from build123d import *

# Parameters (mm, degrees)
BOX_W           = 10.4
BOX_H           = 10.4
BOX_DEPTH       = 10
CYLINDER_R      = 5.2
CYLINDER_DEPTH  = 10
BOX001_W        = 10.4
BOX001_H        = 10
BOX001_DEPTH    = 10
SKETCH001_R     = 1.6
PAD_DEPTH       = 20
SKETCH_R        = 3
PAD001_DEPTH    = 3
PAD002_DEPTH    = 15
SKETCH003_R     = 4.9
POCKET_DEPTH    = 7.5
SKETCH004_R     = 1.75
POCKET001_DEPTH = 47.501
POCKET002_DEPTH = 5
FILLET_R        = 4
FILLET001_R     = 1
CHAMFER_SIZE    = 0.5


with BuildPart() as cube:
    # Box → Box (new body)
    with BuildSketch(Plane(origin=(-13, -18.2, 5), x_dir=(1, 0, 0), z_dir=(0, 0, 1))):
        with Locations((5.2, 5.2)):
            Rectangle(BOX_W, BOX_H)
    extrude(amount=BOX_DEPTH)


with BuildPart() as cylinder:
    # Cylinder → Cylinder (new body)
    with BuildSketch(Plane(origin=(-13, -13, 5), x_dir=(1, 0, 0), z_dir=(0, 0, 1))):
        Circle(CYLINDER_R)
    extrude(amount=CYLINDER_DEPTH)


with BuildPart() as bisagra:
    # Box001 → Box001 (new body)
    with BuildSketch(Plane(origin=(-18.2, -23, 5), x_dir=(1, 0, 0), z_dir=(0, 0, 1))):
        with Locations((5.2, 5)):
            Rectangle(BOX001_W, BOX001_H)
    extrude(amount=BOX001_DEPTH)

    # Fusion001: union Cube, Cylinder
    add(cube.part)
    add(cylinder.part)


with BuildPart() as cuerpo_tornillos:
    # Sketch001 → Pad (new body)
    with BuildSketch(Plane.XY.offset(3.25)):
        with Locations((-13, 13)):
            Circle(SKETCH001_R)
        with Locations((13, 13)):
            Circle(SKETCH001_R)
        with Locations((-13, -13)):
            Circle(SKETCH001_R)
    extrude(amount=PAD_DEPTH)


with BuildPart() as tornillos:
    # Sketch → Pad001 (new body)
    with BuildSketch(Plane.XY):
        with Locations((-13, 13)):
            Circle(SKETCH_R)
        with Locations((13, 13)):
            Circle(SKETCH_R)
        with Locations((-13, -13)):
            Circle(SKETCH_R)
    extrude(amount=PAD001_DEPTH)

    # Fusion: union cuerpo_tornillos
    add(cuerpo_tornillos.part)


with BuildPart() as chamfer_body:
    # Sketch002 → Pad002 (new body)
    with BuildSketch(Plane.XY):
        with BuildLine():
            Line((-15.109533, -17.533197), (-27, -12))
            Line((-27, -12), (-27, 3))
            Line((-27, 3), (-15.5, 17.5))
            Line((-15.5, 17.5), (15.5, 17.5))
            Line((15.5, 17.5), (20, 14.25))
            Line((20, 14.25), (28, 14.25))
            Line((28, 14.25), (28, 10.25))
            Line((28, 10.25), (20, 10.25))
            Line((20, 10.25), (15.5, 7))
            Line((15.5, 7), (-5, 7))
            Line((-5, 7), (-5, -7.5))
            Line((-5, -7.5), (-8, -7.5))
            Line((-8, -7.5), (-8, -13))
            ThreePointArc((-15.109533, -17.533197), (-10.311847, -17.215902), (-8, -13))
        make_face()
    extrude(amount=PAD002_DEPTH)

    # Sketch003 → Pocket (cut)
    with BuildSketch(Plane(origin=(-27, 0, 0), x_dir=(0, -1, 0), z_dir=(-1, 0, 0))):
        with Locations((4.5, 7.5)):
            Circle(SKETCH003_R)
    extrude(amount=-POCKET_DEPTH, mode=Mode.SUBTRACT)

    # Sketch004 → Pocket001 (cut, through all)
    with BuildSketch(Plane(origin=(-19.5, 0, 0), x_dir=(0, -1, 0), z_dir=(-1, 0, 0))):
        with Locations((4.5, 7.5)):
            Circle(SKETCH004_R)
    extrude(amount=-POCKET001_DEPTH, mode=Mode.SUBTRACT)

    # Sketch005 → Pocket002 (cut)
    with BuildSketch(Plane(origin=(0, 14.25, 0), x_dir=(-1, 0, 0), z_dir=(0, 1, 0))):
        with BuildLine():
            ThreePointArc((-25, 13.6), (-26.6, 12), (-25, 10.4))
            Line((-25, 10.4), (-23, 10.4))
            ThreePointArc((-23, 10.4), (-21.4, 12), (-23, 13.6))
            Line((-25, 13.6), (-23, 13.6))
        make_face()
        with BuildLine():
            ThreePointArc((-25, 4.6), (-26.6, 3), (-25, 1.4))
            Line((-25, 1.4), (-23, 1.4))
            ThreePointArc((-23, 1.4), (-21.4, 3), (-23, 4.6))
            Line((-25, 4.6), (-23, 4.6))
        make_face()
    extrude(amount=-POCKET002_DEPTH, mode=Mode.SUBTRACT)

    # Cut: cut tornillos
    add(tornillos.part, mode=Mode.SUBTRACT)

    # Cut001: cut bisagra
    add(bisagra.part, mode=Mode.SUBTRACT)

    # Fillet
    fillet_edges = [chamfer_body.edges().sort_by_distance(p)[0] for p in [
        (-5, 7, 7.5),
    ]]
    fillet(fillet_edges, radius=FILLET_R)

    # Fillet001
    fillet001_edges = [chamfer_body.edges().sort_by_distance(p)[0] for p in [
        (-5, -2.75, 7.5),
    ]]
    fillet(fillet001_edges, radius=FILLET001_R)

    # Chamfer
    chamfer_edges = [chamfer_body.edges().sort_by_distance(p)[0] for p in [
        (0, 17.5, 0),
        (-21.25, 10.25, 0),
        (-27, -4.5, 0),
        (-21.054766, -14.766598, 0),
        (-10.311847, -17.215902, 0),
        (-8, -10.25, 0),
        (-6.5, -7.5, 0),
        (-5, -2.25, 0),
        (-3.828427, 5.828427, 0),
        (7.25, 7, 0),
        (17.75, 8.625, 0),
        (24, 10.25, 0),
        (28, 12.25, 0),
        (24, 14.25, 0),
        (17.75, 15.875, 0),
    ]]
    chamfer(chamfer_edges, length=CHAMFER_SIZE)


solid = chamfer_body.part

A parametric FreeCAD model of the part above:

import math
import FreeCAD as App
import Part
import Sketcher
from FreeCAD import Vector


def edges_at(feature, points):
    """Names of the edges that pass closest to the given points."""
    edges = feature.Shape.Edges
    near = lambda p: min(range(len(edges)), key=lambda i: edges[i].distToShape(Part.Vertex(*p))[0])
    return sorted({f"Edge{near(p) + 1}" for p in points})

doc = App.newDocument("Part")
body = doc.addObject("PartDesign::Body", "Body")

sketch1 = doc.addObject("Sketcher::SketchObject", "Sketch")
body.addObject(sketch1)
sketch1.AttachmentSupport = (doc.XY_Plane, [""])
sketch1.MapMode = "FlatFace"
sketch1.AttachmentOffset = App.Placement(Vector(0, 0, 5), App.Rotation())
sketch1.addGeometry(Part.LineSegment(Vector(-13, -7.8, 0), Vector(-13, -18.2, 0)), False)
sketch1.addGeometry(Part.LineSegment(Vector(-13, -18.2, 0), Vector(-2.6, -18.2, 0)), False)
sketch1.addGeometry(Part.LineSegment(Vector(-2.6, -18.2, 0), Vector(-2.6, -7.8, 0)), False)
sketch1.addGeometry(Part.LineSegment(Vector(-2.6, -7.8, 0), Vector(-13, -7.8, 0)), False)
sketch1.addConstraint(Sketcher.Constraint("Coincident", 0, 2, 1, 1))
sketch1.addConstraint(Sketcher.Constraint("Coincident", 1, 2, 2, 1))
sketch1.addConstraint(Sketcher.Constraint("Coincident", 2, 2, 3, 1))
sketch1.addConstraint(Sketcher.Constraint("Coincident", 3, 2, 0, 1))
sketch1.addConstraint(Sketcher.Constraint("Vertical", 0))
sketch1.addConstraint(Sketcher.Constraint("Horizontal", 1))
sketch1.addConstraint(Sketcher.Constraint("Vertical", 2))
sketch1.addConstraint(Sketcher.Constraint("Horizontal", 3))
sketch1.addConstraint(Sketcher.Constraint("Equal", 3, 0))
sketch1.addConstraint(Sketcher.Constraint("DistanceX", 1, 1, 1, 2, 10.4))
sketch1.addConstraint(Sketcher.Constraint("DistanceX", 0, 2, -1, 1, 13.0))
sketch1.addConstraint(Sketcher.Constraint("DistanceY", 0, 2, -1, 1, 18.2))
pad1 = doc.addObject("PartDesign::Pad", "Pad")
body.addObject(pad1)
pad1.Profile = sketch1
pad1.Length = 10
body2 = doc.addObject("PartDesign::Body", "Body001")

sketch2 = doc.addObject("Sketcher::SketchObject", "Sketch001")
body2.addObject(sketch2)
sketch2.AttachmentSupport = (doc.getObject("XY_Plane001"), [""])
sketch2.MapMode = "FlatFace"
sketch2.AttachmentOffset = App.Placement(Vector(0, 0, 5), App.Rotation())
sketch2.addGeometry(Part.Circle(Vector(-13, -13, 0), Vector(0, 0, 1), 5.2), False)
sketch2.addConstraint(Sketcher.Constraint("Diameter", 0, 10.4))
sketch2.addConstraint(Sketcher.Constraint("DistanceX", 0, 3, -1, 1, 13.0))
sketch2.addConstraint(Sketcher.Constraint("DistanceY", 0, 3, -1, 1, 13.0))
pad2 = doc.addObject("PartDesign::Pad", "Pad001")
body2.addObject(pad2)
pad2.Profile = sketch2
pad2.Length = 10
body3 = doc.addObject("PartDesign::Body", "Body002")

sketch3 = doc.addObject("Sketcher::SketchObject", "Sketch002")
body3.addObject(sketch3)
sketch3.AttachmentSupport = (doc.getObject("XY_Plane002"), [""])
sketch3.MapMode = "FlatFace"
sketch3.AttachmentOffset = App.Placement(Vector(0, 0, 5), App.Rotation())
sketch3.addGeometry(Part.LineSegment(Vector(-18.2, -13, 0), Vector(-18.2, -23, 0)), False)
sketch3.addGeometry(Part.LineSegment(Vector(-18.2, -23, 0), Vector(-7.8, -23, 0)), False)
sketch3.addGeometry(Part.LineSegment(Vector(-7.8, -23, 0), Vector(-7.8, -13, 0)), False)
sketch3.addGeometry(Part.LineSegment(Vector(-7.8, -13, 0), Vector(-18.2, -13, 0)), False)
sketch3.addConstraint(Sketcher.Constraint("Coincident", 0, 2, 1, 1))
sketch3.addConstraint(Sketcher.Constraint("Coincident", 1, 2, 2, 1))
sketch3.addConstraint(Sketcher.Constraint("Coincident", 2, 2, 3, 1))
sketch3.addConstraint(Sketcher.Constraint("Coincident", 3, 2, 0, 1))
sketch3.addConstraint(Sketcher.Constraint("Vertical", 0))
sketch3.addConstraint(Sketcher.Constraint("Horizontal", 1))
sketch3.addConstraint(Sketcher.Constraint("Vertical", 2))
sketch3.addConstraint(Sketcher.Constraint("Horizontal", 3))
sketch3.addConstraint(Sketcher.Constraint("DistanceY", 0, 2, 0, 1, 10.0))
sketch3.addConstraint(Sketcher.Constraint("DistanceX", 1, 1, 1, 2, 10.4))
sketch3.addConstraint(Sketcher.Constraint("DistanceY", 0, 2, -1, 1, 23.0))
sketch3.addConstraint(Sketcher.Constraint("DistanceX", 0, 2, -1, 1, 18.2))
pad3 = doc.addObject("PartDesign::Pad", "Pad002")
body3.addObject(pad3)
pad3.Profile = sketch3
pad3.Length = 10
doc.recompute()

boolean = doc.addObject("PartDesign::Boolean", "Boolean")
body3.addObject(boolean)
boolean.Type = "Fuse"
boolean.addObjects([body])
doc.recompute()

boolean2 = doc.addObject("PartDesign::Boolean", "Boolean001")
body3.addObject(boolean2)
boolean2.Type = "Fuse"
boolean2.addObjects([body2])
body4 = doc.addObject("PartDesign::Body", "Body003")
body4.AllowCompound = True

sketch4 = doc.addObject("Sketcher::SketchObject", "Sketch003")
body4.addObject(sketch4)
sketch4.AttachmentSupport = (doc.getObject("XY_Plane003"), [""])
sketch4.MapMode = "FlatFace"
sketch4.AttachmentOffset = App.Placement(Vector(0, 0, 3.25), App.Rotation())
sketch4.addGeometry(Part.Circle(Vector(-13, 13, 0), Vector(0, 0, 1), 1.6), False)
sketch4.addGeometry(Part.Circle(Vector(13, 13, 0), Vector(0, 0, 1), 1.6), False)
sketch4.addGeometry(Part.Circle(Vector(-13, -13, 0), Vector(0, 0, 1), 1.6), False)
sketch4.addConstraint(Sketcher.Constraint("Equal", 0, 1))
sketch4.addConstraint(Sketcher.Constraint("Equal", 1, 2))
sketch4.addConstraint(Sketcher.Constraint("Symmetric", 1, 3, 2, 3, -1, 1))
sketch4.addConstraint(Sketcher.Constraint("Symmetric", 0, 3, 1, 3, -2))
sketch4.addConstraint(Sketcher.Constraint("Diameter", 0, 3.2))
sketch4.addConstraint(Sketcher.Constraint("DistanceX", 0, 3, -1, 1, 13.0))
sketch4.addConstraint(Sketcher.Constraint("DistanceY", -1, 1, 0, 3, 13.0))
pad4 = doc.addObject("PartDesign::Pad", "Pad003")
body4.addObject(pad4)
pad4.Profile = sketch4
pad4.Length = 20
body5 = doc.addObject("PartDesign::Body", "Body004")
body5.AllowCompound = True

sketch5 = doc.addObject("Sketcher::SketchObject", "Sketch004")
body5.addObject(sketch5)
sketch5.AttachmentSupport = (doc.getObject("XY_Plane004"), [""])
sketch5.MapMode = "FlatFace"
sketch5.addGeometry(Part.Circle(Vector(-13, 13, 0), Vector(0, 0, 1), 3), False)
sketch5.addGeometry(Part.Circle(Vector(13, 13, 0), Vector(0, 0, 1), 3), False)
sketch5.addGeometry(Part.Circle(Vector(-13, -13, 0), Vector(0, 0, 1), 3), False)
sketch5.addConstraint(Sketcher.Constraint("Equal", 0, 1))
sketch5.addConstraint(Sketcher.Constraint("Equal", 1, 2))
sketch5.addConstraint(Sketcher.Constraint("Symmetric", 1, 3, 2, 3, -1, 1))
sketch5.addConstraint(Sketcher.Constraint("Symmetric", 0, 3, 1, 3, -2))
sketch5.addConstraint(Sketcher.Constraint("Diameter", 0, 6.0))
sketch5.addConstraint(Sketcher.Constraint("DistanceX", 0, 3, -1, 1, 13.0))
sketch5.addConstraint(Sketcher.Constraint("DistanceY", -1, 1, 0, 3, 13.0))
pad5 = doc.addObject("PartDesign::Pad", "Pad004")
body5.addObject(pad5)
pad5.Profile = sketch5
pad5.Length = 3
doc.recompute()

boolean3 = doc.addObject("PartDesign::Boolean", "Boolean002")
body5.addObject(boolean3)
boolean3.Type = "Fuse"
boolean3.addObjects([body4])
body6 = doc.addObject("PartDesign::Body", "Body005")

sketch6 = doc.addObject("Sketcher::SketchObject", "Sketch005")
body6.addObject(sketch6)
sketch6.AttachmentSupport = (doc.getObject("XY_Plane005"), [""])
sketch6.MapMode = "FlatFace"
sketch6.addGeometry(Part.LineSegment(Vector(-27, -12, 0), Vector(-15.109533, -17.533197, 0)), False)
sketch6.addGeometry(Part.ArcOfCircle(Part.Circle(Vector(-13.000001, -12.999999, 0), Vector(0, 0, 1), 5.000001), math.radians(-114.955001), math.radians(-0.000011)), False)
sketch6.addGeometry(Part.LineSegment(Vector(-8, -13, 0), Vector(-8, -7.5, 0)), False)
sketch6.addGeometry(Part.LineSegment(Vector(-8, -7.5, 0), Vector(-5, -7.5, 0)), False)
sketch6.addGeometry(Part.LineSegment(Vector(-5, -7.5, 0), Vector(-5, 7, 0)), False)
sketch6.addGeometry(Part.LineSegment(Vector(-5, 7, 0), Vector(15.5, 7, 0)), False)
sketch6.addGeometry(Part.LineSegment(Vector(15.5, 7, 0), Vector(20, 10.25, 0)), False)
sketch6.addGeometry(Part.LineSegment(Vector(20, 10.25, 0), Vector(28, 10.25, 0)), False)
sketch6.addGeometry(Part.LineSegment(Vector(28, 10.25, 0), Vector(28, 14.25, 0)), False)
sketch6.addGeometry(Part.LineSegment(Vector(28, 14.25, 0), Vector(20, 14.25, 0)), False)
sketch6.addGeometry(Part.LineSegment(Vector(20, 14.25, 0), Vector(15.5, 17.5, 0)), False)
sketch6.addGeometry(Part.LineSegment(Vector(15.5, 17.5, 0), Vector(-15.5, 17.5, 0)), False)
sketch6.addGeometry(Part.LineSegment(Vector(-15.5, 17.5, 0), Vector(-27, 3, 0)), False)
sketch6.addGeometry(Part.LineSegment(Vector(-27, 3, 0), Vector(-27, -12, 0)), False)
sketch6.addConstraint(Sketcher.Constraint("Coincident", 0, 2, 1, 1))
sketch6.addConstraint(Sketcher.Constraint("Tangent", 1, 2, 2, 1))
sketch6.addConstraint(Sketcher.Constraint("Coincident", 2, 2, 3, 1))
sketch6.addConstraint(Sketcher.Constraint("Coincident", 3, 2, 4, 1))
sketch6.addConstraint(Sketcher.Constraint("Coincident", 4, 2, 5, 1))
sketch6.addConstraint(Sketcher.Constraint("Coincident", 5, 2, 6, 1))
sketch6.addConstraint(Sketcher.Constraint("Coincident", 6, 2, 7, 1))
sketch6.addConstraint(Sketcher.Constraint("Coincident", 7, 2, 8, 1))
sketch6.addConstraint(Sketcher.Constraint("Coincident", 8, 2, 9, 1))
sketch6.addConstraint(Sketcher.Constraint("Coincident", 9, 2, 10, 1))
sketch6.addConstraint(Sketcher.Constraint("Coincident", 10, 2, 11, 1))
sketch6.addConstraint(Sketcher.Constraint("Coincident", 11, 2, 12, 1))
sketch6.addConstraint(Sketcher.Constraint("Coincident", 12, 2, 13, 1))
sketch6.addConstraint(Sketcher.Constraint("Coincident", 13, 2, 0, 1))
sketch6.addConstraint(Sketcher.Constraint("Vertical", 2))
sketch6.addConstraint(Sketcher.Constraint("Horizontal", 3))
sketch6.addConstraint(Sketcher.Constraint("Vertical", 4))
sketch6.addConstraint(Sketcher.Constraint("Horizontal", 5))
sketch6.addConstraint(Sketcher.Constraint("Horizontal", 7))
sketch6.addConstraint(Sketcher.Constraint("Vertical", 8))
sketch6.addConstraint(Sketcher.Constraint("Horizontal", 9))
sketch6.addConstraint(Sketcher.Constraint("Horizontal", 11))
sketch6.addConstraint(Sketcher.Constraint("Vertical", 13))
sketch6.addConstraint(Sketcher.Constraint("Vertical", 6, 2, 9, 2))
sketch6.addConstraint(Sketcher.Constraint("Vertical", 5, 2, 10, 2))
sketch6.addConstraint(Sketcher.Constraint("Equal", 6, 10))
sketch6.addConstraint(Sketcher.Constraint("Radius", 1, 5.000001))
sketch6.addConstraint(Sketcher.Constraint("DistanceX", 3, 1, 3, 2, 3.0))
sketch6.addConstraint(Sketcher.Constraint("DistanceX", 7, 1, 7, 2, 8.0))
sketch6.addConstraint(Sketcher.Constraint("DistanceX", 11, 2, 11, 1, 31.0))
sketch6.addConstraint(Sketcher.Constraint("DistanceY", 8, 1, 8, 2, 4.0))
sketch6.addConstraint(Sketcher.Constraint("DistanceY", 13, 2, 13, 1, 15.0))
sketch6.addConstraint(Sketcher.Constraint("DistanceX", 5, 1, 5, 2, 20.5))
sketch6.addConstraint(Sketcher.Constraint("DistanceY", 2, 1, 2, 2, 5.5))
sketch6.addConstraint(Sketcher.Constraint("DistanceY", 4, 1, 4, 2, 14.5))
sketch6.addConstraint(Sketcher.Constraint("DistanceX", 1, 3, -1, 1, 13.000001))
sketch6.addConstraint(Sketcher.Constraint("DistanceY", 1, 3, -1, 1, 12.999999))
sketch6.addConstraint(Sketcher.Constraint("DistanceX", -1, 1, 6, 2, 20.0))
sketch6.addConstraint(Sketcher.Constraint("DistanceX", 12, 2, -1, 1, 27.0))
sketch6.addConstraint(Sketcher.Constraint("DistanceY", -1, 1, 12, 2, 3.0))
sketch6.addConstraint(Sketcher.Constraint("DistanceY", 2, 2, 11, 2, 25.0))
sketch6.addConstraint(Sketcher.Constraint("Distance", 0, 13.114857))
pad6 = doc.addObject("PartDesign::Pad", "Pad005")
body6.addObject(pad6)
pad6.Profile = sketch6
pad6.Length = 15

sketch7 = doc.addObject("Sketcher::SketchObject", "Sketch006")
body6.addObject(sketch7)
sketch7.AttachmentSupport = (doc.getObject("YZ_Plane005"), [""])
sketch7.MapMode = "FlatFace"
sketch7.AttachmentOffset = App.Placement(Vector(0, 0, -27), App.Rotation())
sketch7.addGeometry(Part.Circle(Vector(-4.5, 7.5, 0), Vector(0, 0, 1), 4.9), False)
sketch7.addConstraint(Sketcher.Constraint("Diameter", 0, 9.8))
sketch7.addConstraint(Sketcher.Constraint("DistanceX", 0, 3, -1, 1, 4.5))
sketch7.addConstraint(Sketcher.Constraint("DistanceY", -1, 1, 0, 3, 7.5))
pocket1 = doc.addObject("PartDesign::Pocket", "Pocket")
body6.addObject(pocket1)
pocket1.Profile = sketch7
pocket1.Length = 7.5
pocket1.Reversed = True

sketch8 = doc.addObject("Sketcher::SketchObject", "Sketch007")
body6.addObject(sketch8)
sketch8.AttachmentSupport = (doc.getObject("YZ_Plane005"), [""])
sketch8.MapMode = "FlatFace"
sketch8.AttachmentOffset = App.Placement(Vector(0, 0, -19.5), App.Rotation())
sketch8.addGeometry(Part.Circle(Vector(-4.5, 7.5, 0), Vector(0, 0, 1), 1.75), False)
sketch8.addConstraint(Sketcher.Constraint("Diameter", 0, 3.5))
sketch8.addConstraint(Sketcher.Constraint("DistanceX", 0, 3, -1, 1, 4.5))
sketch8.addConstraint(Sketcher.Constraint("DistanceY", -1, 1, 0, 3, 7.5))
pocket2 = doc.addObject("PartDesign::Pocket", "Pocket001")
body6.addObject(pocket2)
pocket2.Profile = sketch8
pocket2.Type = "ThroughAll"
pocket2.Reversed = True

sketch9 = doc.addObject("Sketcher::SketchObject", "Sketch008")
body6.addObject(sketch9)
sketch9.AttachmentSupport = (doc.getObject("XZ_Plane005"), [""])
sketch9.MapMode = "FlatFace"
sketch9.AttachmentOffset = App.Placement(Vector(0, 0, -14.25), App.Rotation())
sketch9.addGeometry(Part.ArcOfCircle(Part.Circle(Vector(25, 12, 0), Vector(0, 0, 1), 1.6), math.radians(-90), math.radians(90)), False)
sketch9.addGeometry(Part.LineSegment(Vector(25, 10.4, 0), Vector(23, 10.4, 0)), False)
sketch9.addGeometry(Part.ArcOfCircle(Part.Circle(Vector(23, 12, 0), Vector(0, 0, 1), 1.6), math.radians(90), math.radians(270)), False)
sketch9.addGeometry(Part.LineSegment(Vector(23, 13.6, 0), Vector(25, 13.6, 0)), False)
sketch9.addGeometry(Part.ArcOfCircle(Part.Circle(Vector(25, 3, 0), Vector(0, 0, 1), 1.6), math.radians(-90), math.radians(90)), False)
sketch9.addGeometry(Part.LineSegment(Vector(25, 1.4, 0), Vector(23, 1.4, 0)), False)
sketch9.addGeometry(Part.ArcOfCircle(Part.Circle(Vector(23, 3, 0), Vector(0, 0, 1), 1.6), math.radians(90), math.radians(270)), False)
sketch9.addGeometry(Part.LineSegment(Vector(23, 4.6, 0), Vector(25, 4.6, 0)), False)
sketch9.addConstraint(Sketcher.Constraint("Tangent", 0, 1, 1, 1))
sketch9.addConstraint(Sketcher.Constraint("Tangent", 1, 2, 2, 2))
sketch9.addConstraint(Sketcher.Constraint("Tangent", 2, 1, 3, 1))
sketch9.addConstraint(Sketcher.Constraint("Tangent", 3, 2, 0, 2))
sketch9.addConstraint(Sketcher.Constraint("Tangent", 4, 1, 5, 1))
sketch9.addConstraint(Sketcher.Constraint("Tangent", 5, 2, 6, 2))
sketch9.addConstraint(Sketcher.Constraint("Tangent", 6, 1, 7, 1))
sketch9.addConstraint(Sketcher.Constraint("Tangent", 7, 2, 4, 2))
sketch9.addConstraint(Sketcher.Constraint("Horizontal", 1))
sketch9.addConstraint(Sketcher.Constraint("Horizontal", 3))
sketch9.addConstraint(Sketcher.Constraint("Horizontal", 5))
sketch9.addConstraint(Sketcher.Constraint("Horizontal", 7))
sketch9.addConstraint(Sketcher.Constraint("Equal", 2, 4))
sketch9.addConstraint(Sketcher.Constraint("Vertical", 0, 3, 4, 3))
sketch9.addConstraint(Sketcher.Constraint("Vertical", 2, 3, 6, 3))
sketch9.addConstraint(Sketcher.Constraint("Radius", 0, 1.6))
sketch9.addConstraint(Sketcher.Constraint("DistanceX", 1, 2, 1, 1, 2.0))
sketch9.addConstraint(Sketcher.Constraint("DistanceX", -1, 1, 0, 3, 25.0))
sketch9.addConstraint(Sketcher.Constraint("DistanceY", -1, 1, 0, 3, 12.0))
sketch9.addConstraint(Sketcher.Constraint("DistanceY", -1, 1, 4, 3, 3.0))
pocket3 = doc.addObject("PartDesign::Pocket", "Pocket002")
body6.addObject(pocket3)
pocket3.Profile = sketch9
pocket3.Length = 5
pocket3.Reversed = True
doc.recompute()

boolean4 = doc.addObject("PartDesign::Boolean", "Boolean003")
body6.addObject(boolean4)
boolean4.Type = "Cut"
boolean4.addObjects([body5])
doc.recompute()

boolean5 = doc.addObject("PartDesign::Boolean", "Boolean004")
body6.addObject(boolean5)
boolean5.Type = "Cut"
boolean5.addObjects([body3])
doc.recompute()

fillet = doc.addObject("PartDesign::Fillet", "Fillet")
body6.addObject(fillet)
fillet.Base = (boolean5, edges_at(boolean5, [(-5, 7, 7.5)]))
fillet.Radius = 4
doc.recompute()

fillet2 = doc.addObject("PartDesign::Fillet", "Fillet001")
body6.addObject(fillet2)
fillet2.Base = (fillet, edges_at(fillet, [(-5, -2.75, 7.5)]))
fillet2.Radius = 1
doc.recompute()

chamfer = doc.addObject("PartDesign::Chamfer", "Chamfer")
body6.addObject(chamfer)
chamfer.Base = (fillet2, edges_at(fillet2, [
    (0, 17.5, 0),
    (-21.25, 10.25, 0),
    (-27, -4.5, 0),
    (-21.055, -14.767, 0),
    (-10.312, -17.216, 0),
    (-8, -10.25, 0),
    (-6.5, -7.5, 0),
    (-5, -2.25, 0),
    (-3.828, 5.828, 0),
    (7.25, 7, 0),
    (17.75, 8.625, 0),
    (24, 10.25, 0),
    (28, 12.25, 0),
    (24, 14.25, 0),
    (17.75, 15.875, 0),
]))
chamfer.Size = 0.5

doc.recompute()
